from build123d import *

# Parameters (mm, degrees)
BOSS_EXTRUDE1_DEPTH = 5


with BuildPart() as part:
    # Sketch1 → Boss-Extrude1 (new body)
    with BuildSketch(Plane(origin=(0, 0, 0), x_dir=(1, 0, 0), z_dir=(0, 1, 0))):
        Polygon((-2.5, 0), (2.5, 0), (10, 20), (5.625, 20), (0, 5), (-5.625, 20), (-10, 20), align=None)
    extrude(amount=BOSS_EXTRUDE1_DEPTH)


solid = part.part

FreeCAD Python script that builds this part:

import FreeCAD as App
import Part
import Sketcher
from FreeCAD import Vector


def add_polygon(sketch, points):
    """Adds a closed chain of lines whose ends are joined by coincident constraints."""
    first, n = sketch.GeometryCount, len(points)
    for a, b in zip(points, points[1:] + points[:1]):
        sketch.addGeometry(Part.LineSegment(App.Vector(*a, 0), App.Vector(*b, 0)), False)
    for i in range(n):
        sketch.addConstraint(Sketcher.Constraint("Coincident", first + i, 2, first + (i + 1) % n, 1))

doc = App.newDocument("Part")
params = doc.addObject("Spreadsheet::Sheet", "Params")
for row, (alias, value) in enumerate([
    ("sketch1_width", "5 mm"),
    ("pad1_length", "5 mm"),
], start=1):
    params.set(f"A{row}", alias)
    params.set(f"B{row}", "=" + value)
    params.setAlias(f"B{row}", alias)

body = doc.addObject("PartDesign::Body", "Body")

sketch1 = doc.addObject("Sketcher::SketchObject", "Sketch")
body.addObject(sketch1)
sketch1.AttachmentSupport = (doc.XZ_Plane, [""])
sketch1.MapMode = "FlatFace"
add_polygon(sketch1, [(-2.5, 0), (2.5, 0), (10, -20), (5.6, -20), (0, -5), (-5.6, -20), (-10, -20)])
sketch1.addConstraint(Sketcher.Constraint("Horizontal", 0))
sketch1.addConstraint(Sketcher.Constraint("Horizontal", 2))
sketch1.addConstraint(Sketcher.Constraint("Horizontal", 5))
sketch1.addConstraint(Sketcher.Constraint("Symmetric", 0, 2, 6, 2, -1, 1))
sketch1.addConstraint(Sketcher.Constraint("Symmetric", 2, 2, 4, 2, -2))
sketch1.addConstraint(Sketcher.Constraint("PointOnObject", 3, 2, -2))
sketch1.addConstraint(Sketcher.Constraint("Parallel", 1, 3))
sketch1.addConstraint(Sketcher.Constraint("Parallel", 4, 6))
sketch1.addConstraint(Sketcher.Constraint("DistanceX", 0, 1, 0, 2, 5.0))
sketch1.addConstraint(Sketcher.Constraint("DistanceX", -1, 1, 1, 2, 10.0))
sketch1.addConstraint(Sketcher.Constraint("DistanceY", 1, 2, -1, 1, 20.0))
sketch1.addConstraint(Sketcher.Constraint("DistanceY", 3, 2, -1, 1, 5.0))
sketch1.setExpression("Constraints[15]", "Params.sketch1_width")
pad1 = doc.addObject("PartDesign::Pad", "Pad")
body.addObject(pad1)
pad1.Profile = sketch1
pad1.setExpression("Length", "Params.pad1_length")
pad1.Reversed = True

doc.recompute()
